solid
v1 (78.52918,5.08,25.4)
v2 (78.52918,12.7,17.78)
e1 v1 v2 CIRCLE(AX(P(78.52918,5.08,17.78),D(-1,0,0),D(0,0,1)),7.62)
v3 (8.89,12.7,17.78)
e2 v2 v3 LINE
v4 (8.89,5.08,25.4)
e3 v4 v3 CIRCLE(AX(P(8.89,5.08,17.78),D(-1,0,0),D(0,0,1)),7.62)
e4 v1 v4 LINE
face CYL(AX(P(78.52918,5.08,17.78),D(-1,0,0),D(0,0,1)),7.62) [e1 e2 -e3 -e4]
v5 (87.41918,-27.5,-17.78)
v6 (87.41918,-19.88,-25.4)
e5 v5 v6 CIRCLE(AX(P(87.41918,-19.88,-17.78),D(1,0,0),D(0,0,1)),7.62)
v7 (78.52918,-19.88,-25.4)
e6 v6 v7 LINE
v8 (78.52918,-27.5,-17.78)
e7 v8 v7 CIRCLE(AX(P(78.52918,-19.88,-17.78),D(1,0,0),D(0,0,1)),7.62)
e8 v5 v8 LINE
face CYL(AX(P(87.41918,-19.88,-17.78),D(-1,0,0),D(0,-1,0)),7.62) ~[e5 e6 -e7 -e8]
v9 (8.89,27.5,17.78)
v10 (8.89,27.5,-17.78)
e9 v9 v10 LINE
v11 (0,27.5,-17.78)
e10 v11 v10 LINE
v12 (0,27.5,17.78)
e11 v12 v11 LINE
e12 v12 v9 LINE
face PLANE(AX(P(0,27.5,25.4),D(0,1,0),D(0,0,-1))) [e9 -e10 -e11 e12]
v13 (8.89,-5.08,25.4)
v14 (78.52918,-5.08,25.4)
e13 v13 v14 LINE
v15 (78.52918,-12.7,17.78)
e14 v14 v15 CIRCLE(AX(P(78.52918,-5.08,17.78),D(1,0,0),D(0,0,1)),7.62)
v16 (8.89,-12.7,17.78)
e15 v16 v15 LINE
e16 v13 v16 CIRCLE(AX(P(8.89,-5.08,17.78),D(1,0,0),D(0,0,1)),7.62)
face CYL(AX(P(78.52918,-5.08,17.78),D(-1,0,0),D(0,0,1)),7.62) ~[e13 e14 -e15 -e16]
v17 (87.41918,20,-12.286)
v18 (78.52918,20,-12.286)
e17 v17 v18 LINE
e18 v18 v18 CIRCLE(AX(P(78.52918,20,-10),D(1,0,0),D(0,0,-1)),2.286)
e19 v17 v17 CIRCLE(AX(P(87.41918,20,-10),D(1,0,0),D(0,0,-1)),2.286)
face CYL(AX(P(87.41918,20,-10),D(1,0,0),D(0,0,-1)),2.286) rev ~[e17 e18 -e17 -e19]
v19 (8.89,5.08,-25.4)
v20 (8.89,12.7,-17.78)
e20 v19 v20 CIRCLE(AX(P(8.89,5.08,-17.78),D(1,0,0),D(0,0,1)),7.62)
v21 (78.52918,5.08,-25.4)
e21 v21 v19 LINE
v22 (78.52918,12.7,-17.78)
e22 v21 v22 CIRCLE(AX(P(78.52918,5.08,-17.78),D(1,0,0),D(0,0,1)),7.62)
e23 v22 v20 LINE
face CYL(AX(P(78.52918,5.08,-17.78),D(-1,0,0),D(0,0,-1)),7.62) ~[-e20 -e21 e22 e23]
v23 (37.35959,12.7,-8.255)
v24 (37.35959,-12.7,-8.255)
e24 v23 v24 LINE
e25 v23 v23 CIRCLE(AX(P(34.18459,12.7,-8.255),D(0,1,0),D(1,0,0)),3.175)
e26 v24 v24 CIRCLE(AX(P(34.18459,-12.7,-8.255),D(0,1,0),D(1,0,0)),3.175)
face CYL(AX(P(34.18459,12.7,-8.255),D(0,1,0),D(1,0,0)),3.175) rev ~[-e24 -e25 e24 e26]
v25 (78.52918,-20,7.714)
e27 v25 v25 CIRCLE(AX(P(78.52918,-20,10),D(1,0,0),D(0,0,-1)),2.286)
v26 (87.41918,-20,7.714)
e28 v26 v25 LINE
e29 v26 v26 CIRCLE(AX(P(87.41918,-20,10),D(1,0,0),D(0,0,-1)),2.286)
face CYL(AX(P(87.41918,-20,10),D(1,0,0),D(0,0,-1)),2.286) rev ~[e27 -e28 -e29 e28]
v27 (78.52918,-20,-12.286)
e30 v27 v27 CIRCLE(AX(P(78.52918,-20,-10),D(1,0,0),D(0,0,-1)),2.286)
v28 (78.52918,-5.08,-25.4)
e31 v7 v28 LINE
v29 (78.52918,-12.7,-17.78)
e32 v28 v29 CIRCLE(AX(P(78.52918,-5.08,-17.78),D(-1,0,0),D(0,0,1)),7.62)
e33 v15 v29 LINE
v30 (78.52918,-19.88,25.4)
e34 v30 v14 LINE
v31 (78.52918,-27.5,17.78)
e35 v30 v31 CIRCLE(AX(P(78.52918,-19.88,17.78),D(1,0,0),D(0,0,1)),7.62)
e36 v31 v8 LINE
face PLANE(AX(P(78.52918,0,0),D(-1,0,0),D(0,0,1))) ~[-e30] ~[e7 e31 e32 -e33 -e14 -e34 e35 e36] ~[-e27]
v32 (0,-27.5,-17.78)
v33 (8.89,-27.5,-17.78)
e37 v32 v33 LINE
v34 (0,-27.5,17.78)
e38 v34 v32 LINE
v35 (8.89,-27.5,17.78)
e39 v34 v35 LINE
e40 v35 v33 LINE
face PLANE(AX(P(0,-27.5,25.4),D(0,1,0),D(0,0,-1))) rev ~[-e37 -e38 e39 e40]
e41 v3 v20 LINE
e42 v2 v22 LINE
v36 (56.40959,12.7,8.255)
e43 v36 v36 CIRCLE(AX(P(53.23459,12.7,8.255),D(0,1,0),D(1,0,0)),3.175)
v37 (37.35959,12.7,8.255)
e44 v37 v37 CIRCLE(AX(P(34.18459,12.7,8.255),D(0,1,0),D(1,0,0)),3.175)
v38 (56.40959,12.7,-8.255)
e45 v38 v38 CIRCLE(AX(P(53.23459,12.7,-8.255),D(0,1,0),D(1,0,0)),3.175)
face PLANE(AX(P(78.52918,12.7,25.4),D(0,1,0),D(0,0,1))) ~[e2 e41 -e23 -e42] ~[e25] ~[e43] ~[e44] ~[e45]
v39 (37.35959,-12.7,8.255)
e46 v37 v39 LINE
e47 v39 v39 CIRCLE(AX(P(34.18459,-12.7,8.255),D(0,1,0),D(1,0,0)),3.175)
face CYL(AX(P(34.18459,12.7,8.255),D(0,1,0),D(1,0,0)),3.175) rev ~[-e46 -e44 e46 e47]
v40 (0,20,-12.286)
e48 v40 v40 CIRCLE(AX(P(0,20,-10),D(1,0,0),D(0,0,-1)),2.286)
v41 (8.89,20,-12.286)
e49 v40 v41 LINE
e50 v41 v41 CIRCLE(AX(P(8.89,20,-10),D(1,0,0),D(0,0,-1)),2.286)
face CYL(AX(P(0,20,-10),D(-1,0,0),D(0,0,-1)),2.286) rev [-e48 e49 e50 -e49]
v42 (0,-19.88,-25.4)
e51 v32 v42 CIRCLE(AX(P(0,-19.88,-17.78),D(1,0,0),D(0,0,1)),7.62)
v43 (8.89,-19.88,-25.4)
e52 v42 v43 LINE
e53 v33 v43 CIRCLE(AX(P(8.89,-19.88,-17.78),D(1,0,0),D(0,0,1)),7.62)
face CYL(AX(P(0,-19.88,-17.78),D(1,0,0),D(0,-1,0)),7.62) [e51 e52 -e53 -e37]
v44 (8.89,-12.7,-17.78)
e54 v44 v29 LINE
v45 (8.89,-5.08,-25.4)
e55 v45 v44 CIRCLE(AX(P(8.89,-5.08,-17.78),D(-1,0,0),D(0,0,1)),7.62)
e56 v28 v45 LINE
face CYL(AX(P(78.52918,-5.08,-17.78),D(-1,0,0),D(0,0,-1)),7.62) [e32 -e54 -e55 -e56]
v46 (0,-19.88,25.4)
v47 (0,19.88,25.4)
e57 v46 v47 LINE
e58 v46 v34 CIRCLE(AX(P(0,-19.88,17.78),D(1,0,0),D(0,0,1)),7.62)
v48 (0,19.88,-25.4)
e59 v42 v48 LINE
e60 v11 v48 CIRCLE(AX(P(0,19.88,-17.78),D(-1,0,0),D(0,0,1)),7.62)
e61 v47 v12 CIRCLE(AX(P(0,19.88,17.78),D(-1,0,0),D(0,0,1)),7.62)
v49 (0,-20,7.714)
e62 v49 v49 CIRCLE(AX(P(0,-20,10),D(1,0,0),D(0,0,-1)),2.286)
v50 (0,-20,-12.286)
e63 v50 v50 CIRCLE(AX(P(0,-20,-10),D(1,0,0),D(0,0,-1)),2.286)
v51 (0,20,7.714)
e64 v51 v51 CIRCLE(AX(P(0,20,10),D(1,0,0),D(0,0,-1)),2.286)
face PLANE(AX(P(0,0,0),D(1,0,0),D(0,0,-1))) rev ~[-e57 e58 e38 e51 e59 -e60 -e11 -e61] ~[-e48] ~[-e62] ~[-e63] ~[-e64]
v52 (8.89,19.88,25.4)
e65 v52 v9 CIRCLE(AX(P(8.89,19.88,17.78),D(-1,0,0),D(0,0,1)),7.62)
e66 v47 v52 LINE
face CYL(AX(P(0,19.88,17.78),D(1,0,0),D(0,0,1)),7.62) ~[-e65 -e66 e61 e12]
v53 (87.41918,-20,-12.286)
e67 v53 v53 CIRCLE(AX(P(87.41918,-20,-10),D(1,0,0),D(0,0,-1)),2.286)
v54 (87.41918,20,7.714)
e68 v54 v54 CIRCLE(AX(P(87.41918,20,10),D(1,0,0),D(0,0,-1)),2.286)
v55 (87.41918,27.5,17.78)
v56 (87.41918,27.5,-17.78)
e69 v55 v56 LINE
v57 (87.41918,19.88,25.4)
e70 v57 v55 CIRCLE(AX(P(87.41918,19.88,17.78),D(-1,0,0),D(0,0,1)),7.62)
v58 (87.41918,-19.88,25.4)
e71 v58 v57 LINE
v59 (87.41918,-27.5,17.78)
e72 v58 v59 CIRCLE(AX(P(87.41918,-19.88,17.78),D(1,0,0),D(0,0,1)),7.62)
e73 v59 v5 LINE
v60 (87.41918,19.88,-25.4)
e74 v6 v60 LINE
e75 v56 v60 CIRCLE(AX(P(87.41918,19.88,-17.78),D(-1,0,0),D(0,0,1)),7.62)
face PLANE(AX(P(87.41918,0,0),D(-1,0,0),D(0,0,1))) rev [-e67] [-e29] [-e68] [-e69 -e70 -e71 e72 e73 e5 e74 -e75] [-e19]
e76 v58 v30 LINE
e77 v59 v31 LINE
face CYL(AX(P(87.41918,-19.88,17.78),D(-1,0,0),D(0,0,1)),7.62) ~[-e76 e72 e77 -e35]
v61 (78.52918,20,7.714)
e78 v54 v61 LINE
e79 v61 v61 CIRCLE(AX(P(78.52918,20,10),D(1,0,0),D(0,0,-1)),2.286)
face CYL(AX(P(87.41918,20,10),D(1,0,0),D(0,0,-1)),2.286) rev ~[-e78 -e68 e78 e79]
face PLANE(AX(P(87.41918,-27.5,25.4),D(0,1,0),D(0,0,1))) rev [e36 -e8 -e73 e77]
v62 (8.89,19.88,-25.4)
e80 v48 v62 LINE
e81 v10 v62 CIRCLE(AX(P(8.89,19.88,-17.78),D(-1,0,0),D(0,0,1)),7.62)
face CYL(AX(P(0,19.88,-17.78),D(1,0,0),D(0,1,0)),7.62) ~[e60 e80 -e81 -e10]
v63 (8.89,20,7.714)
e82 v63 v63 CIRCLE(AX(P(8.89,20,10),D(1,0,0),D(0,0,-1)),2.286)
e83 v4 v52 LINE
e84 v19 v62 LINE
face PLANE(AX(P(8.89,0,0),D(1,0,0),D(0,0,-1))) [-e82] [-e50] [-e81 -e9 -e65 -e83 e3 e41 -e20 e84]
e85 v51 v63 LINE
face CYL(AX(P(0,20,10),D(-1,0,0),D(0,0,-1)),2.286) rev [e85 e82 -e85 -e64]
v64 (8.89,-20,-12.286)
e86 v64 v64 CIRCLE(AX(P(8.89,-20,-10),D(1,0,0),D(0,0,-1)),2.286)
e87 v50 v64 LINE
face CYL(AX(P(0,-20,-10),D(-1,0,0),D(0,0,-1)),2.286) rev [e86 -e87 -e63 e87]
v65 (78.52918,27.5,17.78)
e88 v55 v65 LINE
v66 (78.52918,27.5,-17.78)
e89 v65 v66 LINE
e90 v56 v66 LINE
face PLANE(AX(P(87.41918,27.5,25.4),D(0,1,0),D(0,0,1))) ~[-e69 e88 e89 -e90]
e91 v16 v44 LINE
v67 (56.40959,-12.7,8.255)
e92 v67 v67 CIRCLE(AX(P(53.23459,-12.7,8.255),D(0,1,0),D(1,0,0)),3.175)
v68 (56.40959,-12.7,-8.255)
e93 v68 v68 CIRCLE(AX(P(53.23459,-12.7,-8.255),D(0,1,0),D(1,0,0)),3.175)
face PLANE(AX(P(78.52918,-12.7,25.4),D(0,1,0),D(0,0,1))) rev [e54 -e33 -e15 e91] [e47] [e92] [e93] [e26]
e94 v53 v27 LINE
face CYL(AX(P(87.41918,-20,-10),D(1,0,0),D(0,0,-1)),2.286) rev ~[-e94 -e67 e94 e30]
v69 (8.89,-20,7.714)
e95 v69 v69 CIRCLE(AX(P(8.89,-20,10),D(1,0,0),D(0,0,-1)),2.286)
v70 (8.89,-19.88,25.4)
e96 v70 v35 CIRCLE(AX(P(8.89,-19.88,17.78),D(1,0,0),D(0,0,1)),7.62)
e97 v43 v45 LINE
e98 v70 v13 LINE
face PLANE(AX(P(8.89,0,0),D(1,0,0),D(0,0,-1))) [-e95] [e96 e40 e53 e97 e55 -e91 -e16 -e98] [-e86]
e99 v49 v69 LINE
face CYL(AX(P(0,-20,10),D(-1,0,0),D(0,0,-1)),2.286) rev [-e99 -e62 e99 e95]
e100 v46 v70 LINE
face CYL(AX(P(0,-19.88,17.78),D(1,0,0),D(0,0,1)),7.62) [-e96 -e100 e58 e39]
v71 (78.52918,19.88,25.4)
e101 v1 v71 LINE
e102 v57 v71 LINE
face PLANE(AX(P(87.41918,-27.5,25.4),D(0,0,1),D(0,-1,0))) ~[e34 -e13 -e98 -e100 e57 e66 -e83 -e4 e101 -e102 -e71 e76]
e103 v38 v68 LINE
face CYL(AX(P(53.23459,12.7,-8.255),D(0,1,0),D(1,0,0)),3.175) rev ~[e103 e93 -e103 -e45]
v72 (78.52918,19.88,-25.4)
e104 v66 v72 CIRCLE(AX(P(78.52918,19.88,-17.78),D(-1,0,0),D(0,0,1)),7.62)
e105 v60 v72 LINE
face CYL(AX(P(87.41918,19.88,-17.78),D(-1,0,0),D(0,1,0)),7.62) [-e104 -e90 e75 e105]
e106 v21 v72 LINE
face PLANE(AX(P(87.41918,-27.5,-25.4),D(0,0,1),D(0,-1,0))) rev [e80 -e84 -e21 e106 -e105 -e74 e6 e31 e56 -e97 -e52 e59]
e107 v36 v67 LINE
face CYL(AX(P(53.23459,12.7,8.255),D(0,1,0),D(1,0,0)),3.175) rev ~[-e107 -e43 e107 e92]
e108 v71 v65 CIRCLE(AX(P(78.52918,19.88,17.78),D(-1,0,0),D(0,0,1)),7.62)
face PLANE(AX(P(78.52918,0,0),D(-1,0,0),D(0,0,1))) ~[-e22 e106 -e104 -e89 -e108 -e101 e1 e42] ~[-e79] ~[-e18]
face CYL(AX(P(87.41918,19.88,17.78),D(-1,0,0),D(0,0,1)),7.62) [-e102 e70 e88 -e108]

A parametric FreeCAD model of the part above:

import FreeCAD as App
import Part
import Sketcher
Q = App.Units.Quantity


def edges_at(feature, points):
    """Names of the edges that pass closest to the given points."""
    edges = feature.Shape.Edges
    near = lambda p: min(range(len(edges)), key=lambda i: edges[i].distToShape(Part.Vertex(*p))[0])
    return sorted({f"Edge{near(p) + 1}" for p in points})


def add_polygon(sketch, points):
    """Adds a closed chain of lines whose ends are joined by coincident constraints."""
    first, n = sketch.GeometryCount, len(points)
    for a, b in zip(points, points[1:] + points[:1]):
        sketch.addGeometry(Part.LineSegment(App.Vector(*a, 0), App.Vector(*b, 0)), False)
    for i in range(n):
        sketch.addConstraint(Sketcher.Constraint("Coincident", first + i, 2, first + (i + 1) % n, 1))

doc = App.newDocument("Part")
body = doc.addObject("PartDesign::Body", "Body")

# Sketch on YZ plane
sketch1 = body.newObject("Sketcher::SketchObject", "Sketch")
sketch1.AttachmentSupport = (doc.getObject("YZ_Plane"), [""])
sketch1.MapMode = "FlatFace"
add_polygon(sketch1, [(27.5, 25.4), (-27.5, 25.4), (-27.5, -25.4), (27.5, -25.4)])  # lines 0-3
sketch1.addGeometry(Part.Circle(App.Vector(-20, 10, 0), App.Vector(0, 0, 1), 2.3), False)  # 4
sketch1.addGeometry(Part.Circle(App.Vector(-20, -10, 0), App.Vector(0, 0, 1), 2.3), False)  # 5
sketch1.addGeometry(Part.Circle(App.Vector(20, 10, 0), App.Vector(0, 0, 1), 2.3), False)  # 6
sketch1.addGeometry(Part.Circle(App.Vector(20, -10, 0), App.Vector(0, 0, 1), 2.3), False)  # 7
sketch1.addConstraint([
    Sketcher.Constraint("Horizontal", 0),
    Sketcher.Constraint("Vertical", 1),
    Sketcher.Constraint("Horizontal", 2),
    Sketcher.Constraint("Vertical", 3),
    Sketcher.Constraint("Equal", 4, 5),
    Sketcher.Constraint("Equal", 5, 6),
    Sketcher.Constraint("Equal", 6, 7),
    Sketcher.Constraint("Symmetric", 5, 3, 6, 3, -1, 1),
    Sketcher.Constraint("Symmetric", 4, 3, 7, 3, -1, 1),
    Sketcher.Constraint("Symmetric", 0, 2, 2, 2, -1, 1),
    Sketcher.Constraint("Symmetric", 4, 3, 6, 3, -2),
    Sketcher.Constraint("Diameter", 4, Q("0.18 in")),
    Sketcher.Constraint("DistanceY", 1, 2, 1, 1, Q("2 in")),
    Sketcher.Constraint("DistanceX", 0, 2, 0, 1, Q("55 mm")),
    Sketcher.Constraint("DistanceX", 4, 3, -1, 1, Q("20 mm")),
    Sketcher.Constraint("DistanceY", -1, 1, 4, 3, Q("10 mm")),
])
pad1 = body.newObject("PartDesign::Pad", "Pad")
pad1.Profile = sketch1
pad1.Length = Q("0.35 in")
doc.recompute()

fillet = body.newObject("PartDesign::Fillet", "Fillet")
fillet.Base = (pad1, edges_at(pad1, [
    (4.445, 27.5, 25.4),
    (4.445, 27.5, -25.4),
    (4.445, -27.5, -25.4),
    (4.445, -27.5, 25.4),
]))
fillet.Radius = Q("0.3 in")

# Sketch on YZ plane
sketch2 = body.newObject("Sketcher::SketchObject", "Sketch001")
sketch2.AttachmentSupport = (doc.getObject("YZ_Plane"), [""])
sketch2.MapMode = "FlatFace"
sketch2.AttachmentOffset = App.Placement(App.Vector(0, 0, 0.35 * 25.4), App.Rotation())
add_polygon(sketch2, [(13, 25), (-13, 25), (-13, -25), (13, -25)])  # lines 0-3
sketch2.addConstraint([
    Sketcher.Constraint("Horizontal", 0),
    Sketcher.Constraint("Vertical", 1),
    Sketcher.Constraint("Horizontal", 2),
    Sketcher.Constraint("Vertical", 3),
    Sketcher.Constraint("Symmetric", 0, 2, 2, 2, -1, 1),
    Sketcher.Constraint("DistanceX", 0, 2, 0, 1, Q("1 in")),
    Sketcher.Constraint("DistanceY", 1, 2, 1, 1, Q("2 in")),
])
pad2 = body.newObject("PartDesign::Pad", "Pad001")
pad2.Profile = sketch2
pad2.Length = 34.81959
doc.recompute()

fillet2 = body.newObject("PartDesign::Fillet", "Fillet001")
fillet2.Base = (pad2, edges_at(pad2, [
    (26.3, 12.7, 25.4),
    (26.3, -12.7, 25.4),
    (26.3, -12.7, -25.4),
    (26.3, 12.7, -25.4),
]))
fillet2.Radius = Q("0.3 in")
body2 = doc.addObject("PartDesign::Body", "Body001")
doc.recompute()

body2.BaseFeature = body
doc.recompute()

mirroring = doc.addObject("Part::Mirroring", "Mirroring")
mirroring.Source = body
mirroring.Base = App.Vector(43.70959, 0, 0)
mirroring.Normal = App.Vector(1, 0, 0)
body3 = doc.addObject("PartDesign::Body", "Body002")
body3.BaseFeature = mirroring
boolean = body2.newObject("PartDesign::Boolean", "Boolean")
boolean.Type = "Fuse"
boolean.addObjects([body3])
doc.recompute()

# Sketch on XZ plane
sketch3 = body2.newObject("Sketcher::SketchObject", "Sketch002")
sketch3.AttachmentSupport = (doc.getObject("XZ_Plane001"), [""])
sketch3.MapMode = "FlatFace"
sketch3.AttachmentOffset = App.Placement(App.Vector(0, 0, -0.5 * 25.4), App.Rotation())
sketch3.addGeometry([
    Part.Circle(App.Vector(53.2, -8.3, 0), App.Vector(0, 0, 1), 3.2),
    Part.Circle(App.Vector(34.2, -8.3, 0), App.Vector(0, 0, 1), 3.2),
], False)
sketch3.addConstraint([
    Sketcher.Constraint("Equal", 0, 1),
    Sketcher.Constraint("Horizontal", 0, 3, 1, 3),
    Sketcher.Constraint("Diameter", 0, Q("0.25 in")),
    Sketcher.Constraint("DistanceX", 1, 3, 0, 3, Q("0.75 in")),
    Sketcher.Constraint("DistanceY", 0, 3, -1, 1, Q("0.325 in")),
    Sketcher.Constraint("DistanceX", -1, 1, 0, 3, Q("53.23459 mm")),
])
pocket1 = body2.newObject("PartDesign::Pocket", "Pocket")
pocket1.Profile = sketch3
pocket1.Type = "ThroughAll"
pocket1.Reversed = True
doc.recompute()

linearpattern = body2.newObject("PartDesign::LinearPattern", "LinearPattern")
linearpattern.Originals = [pocket1]
linearpattern.Direction = (doc.getObject("Z_Axis001"), [""])
linearpattern.Mode = "offset"
linearpattern.Offset = Q("0.65 in")
linearpattern.Occurrences = 2
body2.Tip = linearpattern
mirroring.Visibility = False

doc.recompute()
